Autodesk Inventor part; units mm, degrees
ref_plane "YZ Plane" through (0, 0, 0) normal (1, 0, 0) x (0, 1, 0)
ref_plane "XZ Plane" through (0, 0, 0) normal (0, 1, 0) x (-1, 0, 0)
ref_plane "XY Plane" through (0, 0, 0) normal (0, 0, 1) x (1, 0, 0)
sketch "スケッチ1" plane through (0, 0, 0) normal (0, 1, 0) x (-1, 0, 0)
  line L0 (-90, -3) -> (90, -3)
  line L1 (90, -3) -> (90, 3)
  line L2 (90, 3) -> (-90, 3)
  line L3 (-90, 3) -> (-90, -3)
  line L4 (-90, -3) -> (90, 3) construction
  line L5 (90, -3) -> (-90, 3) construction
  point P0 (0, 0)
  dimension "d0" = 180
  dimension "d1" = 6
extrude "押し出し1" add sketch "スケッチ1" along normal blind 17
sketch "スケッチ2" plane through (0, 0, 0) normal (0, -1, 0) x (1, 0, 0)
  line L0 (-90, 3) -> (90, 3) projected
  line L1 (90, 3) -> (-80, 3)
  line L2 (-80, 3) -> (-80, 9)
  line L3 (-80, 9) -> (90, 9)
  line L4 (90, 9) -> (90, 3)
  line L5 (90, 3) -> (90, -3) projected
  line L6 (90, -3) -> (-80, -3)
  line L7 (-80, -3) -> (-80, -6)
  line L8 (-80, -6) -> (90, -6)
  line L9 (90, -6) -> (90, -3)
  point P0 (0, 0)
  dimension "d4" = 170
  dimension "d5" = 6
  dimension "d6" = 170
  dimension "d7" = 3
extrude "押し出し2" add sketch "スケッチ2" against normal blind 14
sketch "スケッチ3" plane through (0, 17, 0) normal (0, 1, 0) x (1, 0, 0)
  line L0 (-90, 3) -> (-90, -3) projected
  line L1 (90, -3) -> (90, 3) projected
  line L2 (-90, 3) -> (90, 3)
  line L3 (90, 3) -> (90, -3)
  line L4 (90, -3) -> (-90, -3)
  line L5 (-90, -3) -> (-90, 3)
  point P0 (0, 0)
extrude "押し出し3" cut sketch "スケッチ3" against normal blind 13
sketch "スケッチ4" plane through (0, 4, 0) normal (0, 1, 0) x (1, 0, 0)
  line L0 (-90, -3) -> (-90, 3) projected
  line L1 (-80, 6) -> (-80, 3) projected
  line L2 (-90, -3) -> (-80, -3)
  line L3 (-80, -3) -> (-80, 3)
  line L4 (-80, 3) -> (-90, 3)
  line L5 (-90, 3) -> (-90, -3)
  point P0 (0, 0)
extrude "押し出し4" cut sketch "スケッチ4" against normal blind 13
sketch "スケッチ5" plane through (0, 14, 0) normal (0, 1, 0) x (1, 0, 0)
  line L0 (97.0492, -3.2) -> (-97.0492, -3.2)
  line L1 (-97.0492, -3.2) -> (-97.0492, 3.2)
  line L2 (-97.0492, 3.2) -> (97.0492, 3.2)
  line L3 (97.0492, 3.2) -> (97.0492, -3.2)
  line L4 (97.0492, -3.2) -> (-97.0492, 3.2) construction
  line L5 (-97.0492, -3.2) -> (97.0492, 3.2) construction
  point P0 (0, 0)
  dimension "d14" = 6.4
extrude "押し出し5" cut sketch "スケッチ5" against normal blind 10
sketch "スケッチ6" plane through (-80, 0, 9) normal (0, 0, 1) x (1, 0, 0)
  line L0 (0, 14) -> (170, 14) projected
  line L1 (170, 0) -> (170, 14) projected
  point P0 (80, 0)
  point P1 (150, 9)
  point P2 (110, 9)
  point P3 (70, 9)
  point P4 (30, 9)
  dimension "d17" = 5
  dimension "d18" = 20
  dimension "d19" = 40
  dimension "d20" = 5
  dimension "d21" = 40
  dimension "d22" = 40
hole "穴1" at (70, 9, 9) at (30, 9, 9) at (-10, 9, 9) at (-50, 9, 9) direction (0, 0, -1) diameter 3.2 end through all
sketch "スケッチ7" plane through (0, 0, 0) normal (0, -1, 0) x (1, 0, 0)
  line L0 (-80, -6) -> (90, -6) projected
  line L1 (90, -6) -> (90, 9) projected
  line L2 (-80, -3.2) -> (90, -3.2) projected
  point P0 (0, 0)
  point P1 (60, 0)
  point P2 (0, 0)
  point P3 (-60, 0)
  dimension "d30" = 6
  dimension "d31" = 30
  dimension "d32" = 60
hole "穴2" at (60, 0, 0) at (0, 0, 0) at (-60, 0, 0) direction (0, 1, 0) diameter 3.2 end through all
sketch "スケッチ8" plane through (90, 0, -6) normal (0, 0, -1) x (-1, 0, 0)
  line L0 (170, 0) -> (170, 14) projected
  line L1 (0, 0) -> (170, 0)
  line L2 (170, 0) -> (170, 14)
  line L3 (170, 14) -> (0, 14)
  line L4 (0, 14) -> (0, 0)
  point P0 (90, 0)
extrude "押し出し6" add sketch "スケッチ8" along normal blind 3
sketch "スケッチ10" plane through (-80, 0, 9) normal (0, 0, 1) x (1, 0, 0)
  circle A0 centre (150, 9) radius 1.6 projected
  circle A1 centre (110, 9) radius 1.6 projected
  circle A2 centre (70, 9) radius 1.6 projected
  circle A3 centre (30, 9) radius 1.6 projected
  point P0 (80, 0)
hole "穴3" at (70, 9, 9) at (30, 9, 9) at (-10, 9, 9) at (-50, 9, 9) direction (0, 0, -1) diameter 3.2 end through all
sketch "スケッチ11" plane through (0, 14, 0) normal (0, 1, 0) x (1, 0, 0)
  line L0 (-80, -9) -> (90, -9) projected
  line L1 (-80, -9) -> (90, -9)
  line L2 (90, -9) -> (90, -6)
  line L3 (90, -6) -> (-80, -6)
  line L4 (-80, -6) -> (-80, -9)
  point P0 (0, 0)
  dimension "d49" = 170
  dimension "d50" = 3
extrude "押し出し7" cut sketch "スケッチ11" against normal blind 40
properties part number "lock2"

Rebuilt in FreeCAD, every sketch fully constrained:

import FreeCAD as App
import Part
import Sketcher
from FreeCAD import Vector


def add_polygon(sketch, points):
    """Adds a closed chain of lines whose ends are joined by coincident constraints."""
    first, n = sketch.GeometryCount, len(points)
    for a, b in zip(points, points[1:] + points[:1]):
        sketch.addGeometry(Part.LineSegment(App.Vector(*a, 0), App.Vector(*b, 0)), False)
    for i in range(n):
        sketch.addConstraint(Sketcher.Constraint("Coincident", first + i, 2, first + (i + 1) % n, 1))

doc = App.newDocument("Part")
body = doc.addObject("PartDesign::Body", "Body")

# Sketch on XZ plane
sketch1 = doc.addObject("Sketcher::SketchObject", "Sketch")
body.addObject(sketch1)
sketch1.AttachmentSupport = (doc.XZ_Plane, [""])
sketch1.MapMode = "FlatFace"
add_polygon(sketch1, [(90, 3), (90, -3), (-90, -3), (-90, 3)])  # lines 0-3
sketch1.addConstraint(Sketcher.Constraint("Vertical", 0))
sketch1.addConstraint(Sketcher.Constraint("Horizontal", 1))
sketch1.addConstraint(Sketcher.Constraint("Vertical", 2))
sketch1.addConstraint(Sketcher.Constraint("Horizontal", 3))
sketch1.addConstraint(Sketcher.Constraint("Symmetric", 0, 2, 2, 2, -1, 1))
sketch1.addConstraint(Sketcher.Constraint("DistanceX", 1, 2, 1, 1, 180.0))
sketch1.addConstraint(Sketcher.Constraint("DistanceY", 0, 2, 0, 1, 6.0))
pad1 = doc.addObject("PartDesign::Pad", "Pad")
body.addObject(pad1)
pad1.Profile = sketch1
pad1.Length = 17
pad1.Reversed = True

# Sketch on XZ plane
sketch2 = doc.addObject("Sketcher::SketchObject", "Sketch001")
body.addObject(sketch2)
sketch2.AttachmentSupport = (doc.XZ_Plane, [""])
sketch2.MapMode = "FlatFace"
add_polygon(sketch2, [(-80, 9), (-80, 3), (90, 3), (90, 9)])  # lines 0-3
add_polygon(sketch2, [(90, -6), (90, -3), (-80, -3), (-80, -6)])  # lines 4-7
sketch2.addConstraint(Sketcher.Constraint("Vertical", 0))
sketch2.addConstraint(Sketcher.Constraint("Horizontal", 1))
sketch2.addConstraint(Sketcher.Constraint("Vertical", 2))
sketch2.addConstraint(Sketcher.Constraint("Horizontal", 3))
sketch2.addConstraint(Sketcher.Constraint("Vertical", 4))
sketch2.addConstraint(Sketcher.Constraint("Horizontal", 5))
sketch2.addConstraint(Sketcher.Constraint("Vertical", 6))
sketch2.addConstraint(Sketcher.Constraint("Horizontal", 7))
sketch2.addConstraint(Sketcher.Constraint("Symmetric", 1, 2, 4, 2, -1))
sketch2.addConstraint(Sketcher.Constraint("Vertical", 3, 2, 5, 2))
sketch2.addConstraint(Sketcher.Constraint("DistanceX", 1, 1, 1, 2, 170.0))
sketch2.addConstraint(Sketcher.Constraint("DistanceY", 0, 2, 0, 1, 6.0))
sketch2.addConstraint(Sketcher.Constraint("DistanceY", 4, 1, 4, 2, 3.0))
sketch2.addConstraint(Sketcher.Constraint("DistanceY", -1, 1, 0, 2, 3.0))
sketch2.addConstraint(Sketcher.Constraint("DistanceX", 0, 2, -1, 1, 80.0))
pad2 = doc.addObject("PartDesign::Pad", "Pad001")
body.addObject(pad2)
pad2.Profile = sketch2
pad2.Length = 14
pad2.Reversed = True

# Sketch on XZ plane
sketch3 = doc.addObject("Sketcher::SketchObject", "Sketch002")
body.addObject(sketch3)
sketch3.AttachmentSupport = (doc.XZ_Plane, [""])
sketch3.MapMode = "FlatFace"
sketch3.AttachmentOffset = App.Placement(Vector(0, 0, -17), App.Rotation())
add_polygon(sketch3, [(90, -3), (-90, -3), (-90, 3), (90, 3)])  # lines 0-3
sketch3.addConstraint(Sketcher.Constraint("Horizontal", 0))
sketch3.addConstraint(Sketcher.Constraint("Vertical", 1))
sketch3.addConstraint(Sketcher.Constraint("Horizontal", 2))
sketch3.addConstraint(Sketcher.Constraint("Vertical", 3))
sketch3.addConstraint(Sketcher.Constraint("Symmetric", 0, 2, 2, 2, -1, 1))
sketch3.addConstraint(Sketcher.Constraint("DistanceX", 0, 2, 0, 1, 180.0))
sketch3.addConstraint(Sketcher.Constraint("DistanceY", 1, 1, 1, 2, 6.0))
pocket1 = doc.addObject("PartDesign::Pocket", "Pocket")
body.addObject(pocket1)
pocket1.Profile = sketch3
pocket1.Length = 13
pocket1.Reversed = True

# Sketch on XZ plane
sketch4 = doc.addObject("Sketcher::SketchObject", "Sketch003")
body.addObject(sketch4)
sketch4.AttachmentSupport = (doc.XZ_Plane, [""])
sketch4.MapMode = "FlatFace"
sketch4.AttachmentOffset = App.Placement(Vector(0, 0, -4), App.Rotation())
add_polygon(sketch4, [(-90, -3), (-90, 3), (-80, 3), (-80, -3)])  # lines 0-3
sketch4.addConstraint(Sketcher.Constraint("Vertical", 0))
sketch4.addConstraint(Sketcher.Constraint("Horizontal", 1))
sketch4.addConstraint(Sketcher.Constraint("Vertical", 2))
sketch4.addConstraint(Sketcher.Constraint("Horizontal", 3))
sketch4.addConstraint(Sketcher.Constraint("DistanceX", 1, 1, 1, 2, 10.0))
sketch4.addConstraint(Sketcher.Constraint("DistanceY", 0, 1, 0, 2, 6.0))
sketch4.addConstraint(Sketcher.Constraint("DistanceX", 0, 2, -1, 1, 90.0))
sketch4.addConstraint(Sketcher.Constraint("DistanceY", -1, 1, 0, 2, 3.0))
pocket2 = doc.addObject("PartDesign::Pocket", "Pocket001")
body.addObject(pocket2)
pocket2.Profile = sketch4
pocket2.Length = 13
pocket2.Reversed = True

# Sketch on XZ plane
sketch5 = doc.addObject("Sketcher::SketchObject", "Sketch004")
body.addObject(sketch5)
sketch5.AttachmentSupport = (doc.XZ_Plane, [""])
sketch5.MapMode = "FlatFace"
sketch5.AttachmentOffset = App.Placement(Vector(0, 0, -14), App.Rotation())
add_polygon(sketch5, [(-97, 3), (97, 3), (97, -3), (-97, -3)])  # lines 0-3
sketch5.addConstraint(Sketcher.Constraint("Horizontal", 0))
sketch5.addConstraint(Sketcher.Constraint("Vertical", 1))
sketch5.addConstraint(Sketcher.Constraint("Horizontal", 2))
sketch5.addConstraint(Sketcher.Constraint("Vertical", 3))
sketch5.addConstraint(Sketcher.Constraint("Symmetric", 0, 2, 2, 2, -1, 1))
sketch5.addConstraint(Sketcher.Constraint("DistanceY", 1, 2, 1, 1, 6.4))
sketch5.addConstraint(Sketcher.Constraint("DistanceX", 0, 1, 0, 2, 194.0984))
pocket3 = doc.addObject("PartDesign::Pocket", "Pocket002")
body.addObject(pocket3)
pocket3.Profile = sketch5
pocket3.Length = 10
pocket3.Reversed = True

# Sketch on XY plane
sketch6 = doc.addObject("Sketcher::SketchObject", "Sketch005")
body.addObject(sketch6)
sketch6.AttachmentSupport = (doc.XY_Plane, [""])
sketch6.MapMode = "FlatFace"
sketch6.AttachmentOffset = App.Placement(Vector(0, 0, 9), App.Rotation())
sketch6.addGeometry(Part.Circle(Vector(70, 9, 0), Vector(0, 0, 1), 1.6), False)
sketch6.addGeometry(Part.Circle(Vector(30, 9, 0), Vector(0, 0, 1), 1.6), False)
sketch6.addGeometry(Part.Circle(Vector(-10, 9, 0), Vector(0, 0, 1), 1.6), False)
sketch6.addGeometry(Part.Circle(Vector(-50, 9, 0), Vector(0, 0, 1), 1.6), False)
sketch6.addConstraint(Sketcher.Constraint("Equal", 0, 1))
sketch6.addConstraint(Sketcher.Constraint("Equal", 1, 2))
sketch6.addConstraint(Sketcher.Constraint("Equal", 2, 3))
sketch6.addConstraint(Sketcher.Constraint("Horizontal", 0, 3, 1, 3))
sketch6.addConstraint(Sketcher.Constraint("Horizontal", 1, 3, 2, 3))
sketch6.addConstraint(Sketcher.Constraint("Horizontal", 2, 3, 3, 3))
sketch6.addConstraint(Sketcher.Constraint("Diameter", 0, 3.2))
sketch6.addConstraint(Sketcher.Constraint("DistanceX", -1, 1, 0, 3, 70.0))
sketch6.addConstraint(Sketcher.Constraint("DistanceY", -1, 1, 0, 3, 9.0))
sketch6.addConstraint(Sketcher.Constraint("DistanceX", -1, 1, 1, 3, 30.0))
sketch6.addConstraint(Sketcher.Constraint("DistanceX", 2, 3, -1, 1, 10.0))
sketch6.addConstraint(Sketcher.Constraint("DistanceX", 3, 3, -1, 1, 50.0))
doc.recompute()
hole = doc.addObject("PartDesign::Hole", "Hole")
body.addObject(hole)
hole.Profile = sketch6
hole.ThreadType = "None"
hole.Diameter = 3.2
hole.DepthType = "ThroughAll"

# Sketch on XZ plane
sketch7 = doc.addObject("Sketcher::SketchObject", "Sketch006")
body.addObject(sketch7)
sketch7.AttachmentSupport = (doc.XZ_Plane, [""])
sketch7.MapMode = "FlatFace"
sketch7.addGeometry(Part.Circle(Vector(60, 0, 0), Vector(0, 0, 1), 1.6), False)
sketch7.addGeometry(Part.Circle(Vector(0, 0, 0), Vector(0, 0, 1), 1.6), False)
sketch7.addGeometry(Part.Circle(Vector(-60, 0, 0), Vector(0, 0, 1), 1.6), False)
sketch7.addConstraint(Sketcher.Constraint("Coincident", 1, 3, -1, 1))
sketch7.addConstraint(Sketcher.Constraint("Equal", 0, 1))
sketch7.addConstraint(Sketcher.Constraint("Equal", 1, 2))
sketch7.addConstraint(Sketcher.Constraint("Symmetric", 0, 3, 2, 3, -1, 1))
sketch7.addConstraint(Sketcher.Constraint("PointOnObject", 0, 3, -1))
sketch7.addConstraint(Sketcher.Constraint("Diameter", 0, 3.2))
sketch7.addConstraint(Sketcher.Constraint("DistanceX", -1, 1, 0, 3, 60.0))
doc.recompute()
hole2 = doc.addObject("PartDesign::Hole", "Hole001")
body.addObject(hole2)
hole2.Profile = sketch7
hole2.ThreadType = "None"
hole2.Diameter = 3.2
hole2.DepthType = "ThroughAll"

# Sketch on XY plane
sketch8 = doc.addObject("Sketcher::SketchObject", "Sketch007")
body.addObject(sketch8)
sketch8.AttachmentSupport = (doc.XY_Plane, [""])
sketch8.MapMode = "FlatFace"
sketch8.AttachmentOffset = App.Placement(Vector(0, 0, -6), App.Rotation())
add_polygon(sketch8, [(90, 0), (-80, 0), (-80, 14), (90, 14)])  # lines 0-3
sketch8.addConstraint(Sketcher.Constraint("Horizontal", 0))
sketch8.addConstraint(Sketcher.Constraint("Vertical", 1))
sketch8.addConstraint(Sketcher.Constraint("Horizontal", 2))
sketch8.addConstraint(Sketcher.Constraint("Vertical", 3))
sketch8.addConstraint(Sketcher.Constraint("PointOnObject", 0, 2, -1))
sketch8.addConstraint(Sketcher.Constraint("DistanceX", 0, 2, 0, 1, 170.0))
sketch8.addConstraint(Sketcher.Constraint("DistanceY", 1, 1, 1, 2, 14.0))
sketch8.addConstraint(Sketcher.Constraint("DistanceX", 0, 2, -1, 1, 80.0))
pad3 = doc.addObject("PartDesign::Pad", "Pad002")
body.addObject(pad3)
pad3.Profile = sketch8
pad3.Length = 3
pad3.Reversed = True

# Sketch on XY plane
sketch9 = doc.addObject("Sketcher::SketchObject", "Sketch008")
body.addObject(sketch9)
sketch9.AttachmentSupport = (doc.XY_Plane, [""])
sketch9.MapMode = "FlatFace"
sketch9.AttachmentOffset = App.Placement(Vector(0, 0, 9), App.Rotation())
sketch9.addGeometry(Part.Circle(Vector(70, 9, 0), Vector(0, 0, 1), 1.6), False)
sketch9.addGeometry(Part.Circle(Vector(30, 9, 0), Vector(0, 0, 1), 1.6), False)
sketch9.addGeometry(Part.Circle(Vector(-10, 9, 0), Vector(0, 0, 1), 1.6), False)
sketch9.addGeometry(Part.Circle(Vector(-50, 9, 0), Vector(0, 0, 1), 1.6), False)
sketch9.addConstraint(Sketcher.Constraint("Equal", 0, 1))
sketch9.addConstraint(Sketcher.Constraint("Equal", 1, 2))
sketch9.addConstraint(Sketcher.Constraint("Equal", 2, 3))
sketch9.addConstraint(Sketcher.Constraint("Horizontal", 0, 3, 1, 3))
sketch9.addConstraint(Sketcher.Constraint("Horizontal", 1, 3, 2, 3))
sketch9.addConstraint(Sketcher.Constraint("Horizontal", 2, 3, 3, 3))
sketch9.addConstraint(Sketcher.Constraint("Diameter", 0, 3.2))
sketch9.addConstraint(Sketcher.Constraint("DistanceX", -1, 1, 0, 3, 70.0))
sketch9.addConstraint(Sketcher.Constraint("DistanceY", -1, 1, 0, 3, 9.0))
sketch9.addConstraint(Sketcher.Constraint("DistanceX", -1, 1, 1, 3, 30.0))
sketch9.addConstraint(Sketcher.Constraint("DistanceX", 2, 3, -1, 1, 10.0))
sketch9.addConstraint(Sketcher.Constraint("DistanceX", 3, 3, -1, 1, 50.0))
doc.recompute()
hole3 = doc.addObject("PartDesign::Hole", "Hole002")
body.addObject(hole3)
hole3.Profile = sketch9
hole3.ThreadType = "None"
hole3.Diameter = 3.2
hole3.DepthType = "ThroughAll"

# Sketch on XZ plane
sketch10 = doc.addObject("Sketcher::SketchObject", "Sketch009")
body.addObject(sketch10)
sketch10.AttachmentSupport = (doc.XZ_Plane, [""])
sketch10.MapMode = "FlatFace"
sketch10.AttachmentOffset = App.Placement(Vector(0, 0, -14), App.Rotation())
add_polygon(sketch10, [(-80, 6), (-80, 9), (90, 9), (90, 6)])  # lines 0-3
sketch10.addConstraint(Sketcher.Constraint("Vertical", 0))
sketch10.addConstraint(Sketcher.Constraint("Horizontal", 1))
sketch10.addConstraint(Sketcher.Constraint("Vertical", 2))
sketch10.addConstraint(Sketcher.Constraint("Horizontal", 3))
sketch10.addConstraint(Sketcher.Constraint("DistanceX", 1, 1, 1, 2, 170.0))
sketch10.addConstraint(Sketcher.Constraint("DistanceY", 0, 1, 0, 2, 3.0))
sketch10.addConstraint(Sketcher.Constraint("DistanceX", 0, 2, -1, 1, 80.0))
sketch10.addConstraint(Sketcher.Constraint("DistanceY", -1, 1, 0, 2, 9.0))
pocket4 = doc.addObject("PartDesign::Pocket", "Pocket003")
body.addObject(pocket4)
pocket4.Profile = sketch10
pocket4.Length = 40
pocket4.Reversed = True

doc.recompute()
